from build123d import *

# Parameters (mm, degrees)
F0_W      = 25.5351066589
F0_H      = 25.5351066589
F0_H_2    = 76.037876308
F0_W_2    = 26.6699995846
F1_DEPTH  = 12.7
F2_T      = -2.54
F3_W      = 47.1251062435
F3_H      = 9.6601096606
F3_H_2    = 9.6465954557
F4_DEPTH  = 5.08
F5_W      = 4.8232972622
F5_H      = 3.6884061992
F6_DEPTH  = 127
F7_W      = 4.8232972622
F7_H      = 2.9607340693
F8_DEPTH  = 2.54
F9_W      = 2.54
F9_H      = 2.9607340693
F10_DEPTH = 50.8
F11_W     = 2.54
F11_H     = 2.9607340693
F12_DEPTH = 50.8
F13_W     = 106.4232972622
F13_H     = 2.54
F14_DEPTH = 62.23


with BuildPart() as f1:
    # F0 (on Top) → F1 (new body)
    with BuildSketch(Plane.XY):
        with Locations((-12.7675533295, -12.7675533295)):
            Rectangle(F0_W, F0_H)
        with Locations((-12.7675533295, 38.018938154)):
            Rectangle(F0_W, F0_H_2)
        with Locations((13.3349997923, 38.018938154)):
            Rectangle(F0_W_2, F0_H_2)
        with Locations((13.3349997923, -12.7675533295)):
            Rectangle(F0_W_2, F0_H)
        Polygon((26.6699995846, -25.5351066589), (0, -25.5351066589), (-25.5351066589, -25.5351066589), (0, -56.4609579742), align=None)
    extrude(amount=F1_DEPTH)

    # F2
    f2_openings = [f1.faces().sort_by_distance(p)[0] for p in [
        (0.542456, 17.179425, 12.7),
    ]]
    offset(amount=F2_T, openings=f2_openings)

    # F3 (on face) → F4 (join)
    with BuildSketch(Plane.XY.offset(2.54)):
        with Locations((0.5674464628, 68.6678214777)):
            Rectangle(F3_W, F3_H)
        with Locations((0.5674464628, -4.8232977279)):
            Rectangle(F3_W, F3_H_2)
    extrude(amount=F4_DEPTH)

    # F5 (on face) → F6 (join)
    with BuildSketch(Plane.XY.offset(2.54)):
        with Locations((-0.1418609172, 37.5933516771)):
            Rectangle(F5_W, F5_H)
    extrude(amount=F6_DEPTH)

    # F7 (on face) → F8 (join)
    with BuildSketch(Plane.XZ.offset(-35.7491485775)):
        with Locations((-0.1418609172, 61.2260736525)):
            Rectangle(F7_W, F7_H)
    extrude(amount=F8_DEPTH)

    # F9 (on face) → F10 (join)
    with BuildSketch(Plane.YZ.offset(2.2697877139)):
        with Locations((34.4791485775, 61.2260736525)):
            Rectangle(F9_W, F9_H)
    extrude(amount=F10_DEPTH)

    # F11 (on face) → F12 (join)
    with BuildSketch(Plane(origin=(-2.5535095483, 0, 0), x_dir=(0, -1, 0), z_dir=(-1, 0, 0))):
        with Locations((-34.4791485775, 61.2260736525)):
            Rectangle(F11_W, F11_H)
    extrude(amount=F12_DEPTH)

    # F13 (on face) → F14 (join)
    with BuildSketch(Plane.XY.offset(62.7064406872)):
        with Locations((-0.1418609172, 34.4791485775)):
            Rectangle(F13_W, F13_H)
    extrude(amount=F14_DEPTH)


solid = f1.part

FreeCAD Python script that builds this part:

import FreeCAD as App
import Part
import Sketcher
Q = App.Units.Quantity


def faces_at(feature, points):
    """Names of the faces that lie closest to the given points."""
    faces = feature.Shape.Faces
    near = lambda p: min(range(len(faces)), key=lambda i: faces[i].distToShape(Part.Vertex(*p))[0])
    return sorted({f"Face{near(p) + 1}" for p in points})

doc = App.newDocument("Part")
body = doc.addObject("PartDesign::Body", "Body")

sketch1 = body.newObject("Sketcher::SketchObject", "Sketch")
sketch1.AttachmentSupport = (doc.getObject("XY_Plane"), [""])
sketch1.MapMode = "FlatFace"
sketch1.addGeometry([
    Part.LineSegment(App.Vector(26.67, -25.535107, 0), App.Vector(26.67, 76.037876, 0)),
    Part.LineSegment(App.Vector(26.67, 76.037876, 0), App.Vector(-25.535107, 76.037876, 0)),
    Part.LineSegment(App.Vector(-25.535107, 76.037876, 0), App.Vector(-25.535107, -25.535107, 0)),
    Part.LineSegment(App.Vector(-25.535107, -25.535107, 0), App.Vector(0, -56.460958, 0)),
    Part.LineSegment(App.Vector(0, -56.460958, 0), App.Vector(26.67, -25.535107, 0)),
], False)
sketch1.addConstraint([
    Sketcher.Constraint("Coincident", 0, 2, 1, 1),
    Sketcher.Constraint("Coincident", 1, 2, 2, 1),
    Sketcher.Constraint("Coincident", 2, 2, 3, 1),
    Sketcher.Constraint("Coincident", 3, 2, 4, 1),
    Sketcher.Constraint("Coincident", 4, 2, 0, 1),
    Sketcher.Constraint("Vertical", 0),
    Sketcher.Constraint("Horizontal", 1),
    Sketcher.Constraint("Vertical", 2),
    Sketcher.Constraint("PointOnObject", 3, 2, -2),
    Sketcher.Constraint("Horizontal", 2, 2, 4, 2),
    Sketcher.Constraint("DistanceX", -1, 1, 0, 2, Q("1.05 in")),
    Sketcher.Constraint("DistanceX", 1, 2, 1, 1, 52.205106),
    Sketcher.Constraint("DistanceY", 0, 1, 0, 2, 101.572983),
    Sketcher.Constraint("DistanceY", 3, 2, 2, 2, 30.925851),
    Sketcher.Constraint("DistanceY", -1, 1, 0, 2, 76.037876),
])
pad1 = body.newObject("PartDesign::Pad", "Pad")
pad1.Profile = sketch1
pad1.Length = Q("0.5 in")
doc.recompute()

thickness = body.newObject("PartDesign::Thickness", "Thickness")
thickness.Base = (pad1, faces_at(pad1, [(0.567, 9.788, 12.7)]))
thickness.Value = Q("0.1 in")
thickness.Reversed = True
thickness.Join = "Arc"

sketch2 = body.newObject("Sketcher::SketchObject", "Sketch001")
sketch2.AttachmentSupport = (doc.getObject("XY_Plane"), [""])
sketch2.MapMode = "FlatFace"
sketch2.AttachmentOffset = App.Placement(App.Vector(0, 0, 0.1 * 25.4), App.Rotation())
sketch2.addGeometry([
    Part.LineSegment(App.Vector(-22.995107, 73.497876, 0), App.Vector(-22.995107, 63.837767, 0)),
    Part.LineSegment(App.Vector(-22.995107, 63.837767, 0), App.Vector(24.13, 63.837767, 0)),
    Part.LineSegment(App.Vector(24.13, 63.837767, 0), App.Vector(24.13, 73.497876, 0)),
    Part.LineSegment(App.Vector(24.13, 73.497876, 0), App.Vector(-22.995107, 73.497876, 0)),
    Part.LineSegment(App.Vector(-22.995107, 0, 0), App.Vector(-22.995107, -9.646595, 0)),
    Part.LineSegment(App.Vector(-22.995107, -9.646595, 0), App.Vector(24.13, -9.646595, 0)),
    Part.LineSegment(App.Vector(24.13, -9.646595, 0), App.Vector(24.13, 0, 0)),
    Part.LineSegment(App.Vector(24.13, 0, 0), App.Vector(-22.995107, 0, 0)),
], False)
sketch2.addConstraint([
    Sketcher.Constraint("Coincident", 0, 2, 1, 1),
    Sketcher.Constraint("Coincident", 1, 2, 2, 1),
    Sketcher.Constraint("Coincident", 2, 2, 3, 1),
    Sketcher.Constraint("Coincident", 3, 2, 0, 1),
    Sketcher.Constraint("Coincident", 4, 2, 5, 1),
    Sketcher.Constraint("Coincident", 5, 2, 6, 1),
    Sketcher.Constraint("Coincident", 6, 2, 7, 1),
    Sketcher.Constraint("Coincident", 7, 2, 4, 1),
    Sketcher.Constraint("Vertical", 0),
    Sketcher.Constraint("Horizontal", 1),
    Sketcher.Constraint("Vertical", 2),
    Sketcher.Constraint("Horizontal", 3),
    Sketcher.Constraint("Vertical", 4),
    Sketcher.Constraint("Horizontal", 5),
    Sketcher.Constraint("Vertical", 6),
    Sketcher.Constraint("Horizontal", 7),
    Sketcher.Constraint("PointOnObject", 6, 2, -1),
    Sketcher.Constraint("Vertical", 3, 2, 4, 2),
    Sketcher.Constraint("Vertical", 2, 2, 5, 2),
    Sketcher.Constraint("DistanceX", -1, 1, 1, 2, Q("0.95 in")),
    Sketcher.Constraint("DistanceY", 0, 2, 0, 1, 9.66011),
    Sketcher.Constraint("DistanceX", 1, 1, 1, 2, 47.125106),
    Sketcher.Constraint("DistanceY", 4, 2, 4, 1, 9.646595),
    Sketcher.Constraint("DistanceY", 4, 2, 3, 2, 83.144472),
])
pad2 = body.newObject("PartDesign::Pad", "Pad001")
pad2.Profile = sketch2
pad2.Length = Q("0.2 in")

sketch3 = body.newObject("Sketcher::SketchObject", "Sketch002")
sketch3.AttachmentSupport = (doc.getObject("XY_Plane"), [""])
sketch3.MapMode = "FlatFace"
sketch3.AttachmentOffset = App.Placement(App.Vector(0, 0, 0.1 * 25.4), App.Rotation())
sketch3.addGeometry([
    Part.LineSegment(App.Vector(-2.55351, 39.437555, 0), App.Vector(-2.55351, 35.749149, 0)),
    Part.LineSegment(App.Vector(-2.55351, 35.749149, 0), App.Vector(2.269788, 35.749149, 0)),
    Part.LineSegment(App.Vector(2.269788, 35.749149, 0), App.Vector(2.269788, 39.437555, 0)),
    Part.LineSegment(App.Vector(2.269788, 39.437555, 0), App.Vector(-2.55351, 39.437555, 0)),
], False)
sketch3.addConstraint([
    Sketcher.Constraint("Coincident", 0, 2, 1, 1),
    Sketcher.Constraint("Coincident", 1, 2, 2, 1),
    Sketcher.Constraint("Coincident", 2, 2, 3, 1),
    Sketcher.Constraint("Coincident", 3, 2, 0, 1),
    Sketcher.Constraint("Vertical", 0),
    Sketcher.Constraint("Horizontal", 1),
    Sketcher.Constraint("Vertical", 2),
    Sketcher.Constraint("Horizontal", 3),
    Sketcher.Constraint("DistanceX", 1, 1, 1, 2, 4.823297),
    Sketcher.Constraint("DistanceY", 0, 2, 0, 1, 3.688406),
    Sketcher.Constraint("DistanceX", 0, 2, -1, 1, 2.55351),
    Sketcher.Constraint("DistanceY", -1, 1, 0, 2, 35.749149),
])
pad3 = body.newObject("PartDesign::Pad", "Pad002")
pad3.Profile = sketch3
pad3.Length = Q("5 in")

sketch4 = body.newObject("Sketcher::SketchObject", "Sketch003")
sketch4.AttachmentSupport = (doc.getObject("XZ_Plane"), [""])
sketch4.MapMode = "FlatFace"
sketch4.AttachmentOffset = App.Placement(App.Vector(0, 0, -35.749149), App.Rotation())
sketch4.addGeometry([
    Part.LineSegment(App.Vector(-2.55351, 62.706441, 0), App.Vector(-2.55351, 59.745707, 0)),
    Part.LineSegment(App.Vector(-2.55351, 59.745707, 0), App.Vector(2.269788, 59.745707, 0)),
    Part.LineSegment(App.Vector(2.269788, 59.745707, 0), App.Vector(2.269788, 62.706441, 0)),
    Part.LineSegment(App.Vector(2.269788, 62.706441, 0), App.Vector(-2.55351, 62.706441, 0)),
], False)
sketch4.addConstraint([
    Sketcher.Constraint("Coincident", 0, 2, 1, 1),
    Sketcher.Constraint("Coincident", 1, 2, 2, 1),
    Sketcher.Constraint("Coincident", 2, 2, 3, 1),
    Sketcher.Constraint("Coincident", 3, 2, 0, 1),
    Sketcher.Constraint("Vertical", 0),
    Sketcher.Constraint("Horizontal", 1),
    Sketcher.Constraint("Vertical", 2),
    Sketcher.Constraint("Horizontal", 3),
    Sketcher.Constraint("DistanceX", 1, 1, 1, 2, 4.823297),
    Sketcher.Constraint("DistanceY", 0, 2, 0, 1, 2.960734),
    Sketcher.Constraint("DistanceX", 0, 2, -1, 1, 2.55351),
    Sketcher.Constraint("DistanceY", -1, 1, 2, 2, 62.706441),
])
pad4 = body.newObject("PartDesign::Pad", "Pad003")
pad4.Profile = sketch4
pad4.Length = Q("0.1 in")

sketch5 = body.newObject("Sketcher::SketchObject", "Sketch004")
sketch5.AttachmentSupport = (doc.getObject("YZ_Plane"), [""])
sketch5.MapMode = "FlatFace"
sketch5.AttachmentOffset = App.Placement(App.Vector(0, 0, 2.269788), App.Rotation())
sketch5.addGeometry([
    Part.LineSegment(App.Vector(33.209149, 62.706441, 0), App.Vector(33.209149, 59.745707, 0)),
    Part.LineSegment(App.Vector(33.209149, 59.745707, 0), App.Vector(35.749149, 59.745707, 0)),
    Part.LineSegment(App.Vector(35.749149, 59.745707, 0), App.Vector(35.749149, 62.706441, 0)),
    Part.LineSegment(App.Vector(35.749149, 62.706441, 0), App.Vector(33.209149, 62.706441, 0)),
], False)
sketch5.addConstraint([
    Sketcher.Constraint("Coincident", 0, 2, 1, 1),
    Sketcher.Constraint("Coincident", 1, 2, 2, 1),
    Sketcher.Constraint("Coincident", 2, 2, 3, 1),
    Sketcher.Constraint("Coincident", 3, 2, 0, 1),
    Sketcher.Constraint("Vertical", 0),
    Sketcher.Constraint("Horizontal", 1),
    Sketcher.Constraint("Vertical", 2),
    Sketcher.Constraint("Horizontal", 3),
    Sketcher.Constraint("DistanceX", 1, 1, 1, 2, Q("0.1 in")),
    Sketcher.Constraint("DistanceY", 0, 2, 0, 1, 2.960734),
    Sketcher.Constraint("DistanceX", -1, 1, 0, 2, 33.209149),
    Sketcher.Constraint("DistanceY", -1, 1, 2, 2, 62.706441),
])
pad5 = body.newObject("PartDesign::Pad", "Pad004")
pad5.Profile = sketch5
pad5.Length = Q("2 in")

sketch6 = body.newObject("Sketcher::SketchObject", "Sketch005")
sketch6.AttachmentSupport = (doc.getObject("YZ_Plane"), [""])
sketch6.MapMode = "FlatFace"
sketch6.AttachmentOffset = App.Placement(App.Vector(0, 0, -2.55351), App.Rotation())
sketch6.addGeometry([
    Part.LineSegment(App.Vector(35.749149, 62.706441, 0), App.Vector(35.749149, 59.745707, 0)),
    Part.LineSegment(App.Vector(35.749149, 59.745707, 0), App.Vector(33.209149, 59.745707, 0)),
    Part.LineSegment(App.Vector(33.209149, 59.745707, 0), App.Vector(33.209149, 62.706441, 0)),
    Part.LineSegment(App.Vector(33.209149, 62.706441, 0), App.Vector(35.749149, 62.706441, 0)),
], False)
sketch6.addConstraint([
    Sketcher.Constraint("Coincident", 0, 2, 1, 1),
    Sketcher.Constraint("Coincident", 1, 2, 2, 1),
    Sketcher.Constraint("Coincident", 2, 2, 3, 1),
    Sketcher.Constraint("Coincident", 3, 2, 0, 1),
    Sketcher.Constraint("Vertical", 0),
    Sketcher.Constraint("Horizontal", 1),
    Sketcher.Constraint("Vertical", 2),
    Sketcher.Constraint("Horizontal", 3),
    Sketcher.Constraint("DistanceX", 1, 2, 1, 1, Q("0.1 in")),
    Sketcher.Constraint("DistanceY", 0, 2, 0, 1, 2.960734),
    Sketcher.Constraint("DistanceX", -1, 1, 0, 2, 35.749149),
    Sketcher.Constraint("DistanceY", -1, 1, 2, 2, 62.706441),
])
pad6 = body.newObject("PartDesign::Pad", "Pad005")
pad6.Profile = sketch6
pad6.Length = Q("2 in")
pad6.Reversed = True

sketch7 = body.newObject("Sketcher::SketchObject", "Sketch006")
sketch7.AttachmentSupport = (doc.getObject("XY_Plane"), [""])
sketch7.MapMode = "FlatFace"
sketch7.AttachmentOffset = App.Placement(App.Vector(0, 0, 62.706441), App.Rotation())
sketch7.addGeometry([
    Part.LineSegment(App.Vector(-53.35351, 35.749149, 0), App.Vector(-53.35351, 33.209149, 0)),
    Part.LineSegment(App.Vector(-53.35351, 33.209149, 0), App.Vector(53.069788, 33.209149, 0)),
    Part.LineSegment(App.Vector(53.069788, 33.209149, 0), App.Vector(53.069788, 35.749149, 0)),
    Part.LineSegment(App.Vector(53.069788, 35.749149, 0), App.Vector(-53.35351, 35.749149, 0)),
], False)
sketch7.addConstraint([
    Sketcher.Constraint("Coincident", 0, 2, 1, 1),
    Sketcher.Constraint("Coincident", 1, 2, 2, 1),
    Sketcher.Constraint("Coincident", 2, 2, 3, 1),
    Sketcher.Constraint("Coincident", 3, 2, 0, 1),
    Sketcher.Constraint("Vertical", 0),
    Sketcher.Constraint("Horizontal", 1),
    Sketcher.Constraint("Vertical", 2),
    Sketcher.Constraint("Horizontal", 3),
    Sketcher.Constraint("DistanceY", 0, 2, 0, 1, Q("0.1 in")),
    Sketcher.Constraint("DistanceX", 1, 1, 1, 2, 106.423297),
    Sketcher.Constraint("DistanceX", 0, 2, -1, 1, 53.35351),
    Sketcher.Constraint("DistanceY", -1, 1, 0, 2, 33.209149),
])
pad7 = body.newObject("PartDesign::Pad", "Pad006")
pad7.Profile = sketch7
pad7.Length = Q("2.45 in")

doc.recompute()
